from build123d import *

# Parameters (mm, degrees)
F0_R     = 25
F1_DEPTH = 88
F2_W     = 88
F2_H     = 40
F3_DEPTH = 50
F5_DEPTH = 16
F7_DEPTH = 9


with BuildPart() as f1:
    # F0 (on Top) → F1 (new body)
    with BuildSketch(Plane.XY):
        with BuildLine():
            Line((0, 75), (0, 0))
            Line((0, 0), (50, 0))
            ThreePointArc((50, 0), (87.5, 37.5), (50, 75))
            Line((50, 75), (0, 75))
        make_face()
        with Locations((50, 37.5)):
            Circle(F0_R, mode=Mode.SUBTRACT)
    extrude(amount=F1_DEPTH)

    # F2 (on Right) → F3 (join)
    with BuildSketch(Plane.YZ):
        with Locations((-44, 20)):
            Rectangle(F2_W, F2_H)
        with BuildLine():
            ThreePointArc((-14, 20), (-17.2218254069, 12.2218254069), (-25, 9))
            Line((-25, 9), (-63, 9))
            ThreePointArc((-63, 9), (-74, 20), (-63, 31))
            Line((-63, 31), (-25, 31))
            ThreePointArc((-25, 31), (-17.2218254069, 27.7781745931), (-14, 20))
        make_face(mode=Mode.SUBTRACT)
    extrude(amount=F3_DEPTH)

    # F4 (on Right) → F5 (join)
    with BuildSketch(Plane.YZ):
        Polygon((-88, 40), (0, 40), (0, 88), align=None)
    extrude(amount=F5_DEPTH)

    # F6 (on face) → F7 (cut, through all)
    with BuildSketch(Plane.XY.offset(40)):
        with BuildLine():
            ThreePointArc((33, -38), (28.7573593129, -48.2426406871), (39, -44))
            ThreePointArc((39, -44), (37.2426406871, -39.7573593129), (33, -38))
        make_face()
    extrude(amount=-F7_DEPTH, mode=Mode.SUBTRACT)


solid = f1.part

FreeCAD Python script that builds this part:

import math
import FreeCAD as App
import Part
import Sketcher
from FreeCAD import Vector
Q = App.Units.Quantity


def add_polygon(sketch, points):
    """Adds a closed chain of lines whose ends are joined by coincident constraints."""
    first, n = sketch.GeometryCount, len(points)
    for a, b in zip(points, points[1:] + points[:1]):
        sketch.addGeometry(Part.LineSegment(App.Vector(*a, 0), App.Vector(*b, 0)), False)
    for i in range(n):
        sketch.addConstraint(Sketcher.Constraint("Coincident", first + i, 2, first + (i + 1) % n, 1))

doc = App.newDocument("Part")
body = doc.addObject("PartDesign::Body", "Body")

# Sketch on XY plane
sketch1 = doc.addObject("Sketcher::SketchObject", "Sketch")
body.addObject(sketch1)
sketch1.AttachmentSupport = (doc.XY_Plane, [""])
sketch1.MapMode = "FlatFace"
sketch1.addGeometry(Part.LineSegment(Vector(0, 75, 0), Vector(0, 0, 0)), False)
sketch1.addGeometry(Part.LineSegment(Vector(0, 0, 0), Vector(50, 0, 0)), False)
sketch1.addGeometry(Part.ArcOfCircle(Part.Circle(Vector(50, 38, 0), Vector(0, 0, 1), 38), math.radians(-90), math.radians(90)), False)
sketch1.addGeometry(Part.LineSegment(Vector(50, 75, 0), Vector(0, 75, 0)), False)
sketch1.addGeometry(Part.Circle(Vector(50, 38, 0), Vector(0, 0, 1), 25), False)
sketch1.addConstraint(Sketcher.Constraint("Coincident", 0, 2, 1, 1))
sketch1.addConstraint(Sketcher.Constraint("Tangent", 1, 2, 2, 1))
sketch1.addConstraint(Sketcher.Constraint("Tangent", 2, 2, 3, 1))
sketch1.addConstraint(Sketcher.Constraint("Coincident", 3, 2, 0, 1))
sketch1.addConstraint(Sketcher.Constraint("Vertical", 0))
sketch1.addConstraint(Sketcher.Constraint("Horizontal", 1))
sketch1.addConstraint(Sketcher.Constraint("Horizontal", 3))
sketch1.addConstraint(Sketcher.Constraint("Coincident", 0, 2, -1, 1))
sketch1.addConstraint(Sketcher.Constraint("Coincident", 4, 3, 2, 3))
sketch1.addConstraint(Sketcher.Constraint("Diameter", 4, Q("50 mm")))
sketch1.addConstraint(Sketcher.Constraint("Radius", 2, Q("37.5 mm")))
sketch1.addConstraint(Sketcher.Constraint("DistanceX", 1, 1, 1, 2, Q("50 mm")))
pad1 = doc.addObject("PartDesign::Pad", "Pad")
body.addObject(pad1)
pad1.Profile = sketch1
pad1.Length = 88

# Sketch on YZ plane
sketch2 = doc.addObject("Sketcher::SketchObject", "Sketch001")
body.addObject(sketch2)
sketch2.AttachmentSupport = (doc.YZ_Plane, [""])
sketch2.MapMode = "FlatFace"
add_polygon(sketch2, [(-88, 40), (-88, 0), (0, 0), (0, 40)])  # lines 0-3
sketch2.addGeometry(Part.ArcOfCircle(Part.Circle(Vector(-25, 20, 0), Vector(0, 0, 1), 11), math.radians(0), math.radians(90)), False)  # 4
sketch2.addGeometry(Part.ArcOfCircle(Part.Circle(Vector(-25, 20, 0), Vector(0, 0, 1), 11), math.radians(-90), math.radians(0)), False)  # 5
sketch2.addGeometry(Part.LineSegment(Vector(-25, 9, 0), Vector(-63, 9, 0)), False)  # 6
sketch2.addGeometry(Part.ArcOfCircle(Part.Circle(Vector(-63, 20, 0), Vector(0, 0, 1), 11), math.radians(90), math.radians(270)), False)  # 7
sketch2.addGeometry(Part.LineSegment(Vector(-63, 31, 0), Vector(-25, 31, 0)), False)  # 8
sketch2.addConstraint(Sketcher.Constraint("Tangent", 4, 1, 5, 2))
sketch2.addConstraint(Sketcher.Constraint("Tangent", 5, 1, 6, 1))
sketch2.addConstraint(Sketcher.Constraint("Tangent", 6, 2, 7, 2))
sketch2.addConstraint(Sketcher.Constraint("Tangent", 7, 1, 8, 1))
sketch2.addConstraint(Sketcher.Constraint("Tangent", 8, 2, 4, 2))
sketch2.addConstraint(Sketcher.Constraint("Vertical", 0))
sketch2.addConstraint(Sketcher.Constraint("Horizontal", 1))
sketch2.addConstraint(Sketcher.Constraint("Vertical", 2))
sketch2.addConstraint(Sketcher.Constraint("Horizontal", 3))
sketch2.addConstraint(Sketcher.Constraint("Horizontal", 6))
sketch2.addConstraint(Sketcher.Constraint("Horizontal", 8))
sketch2.addConstraint(Sketcher.Constraint("Coincident", 1, 2, -1, 1))
sketch2.addConstraint(Sketcher.Constraint("Equal", 4, 5))
sketch2.addConstraint(Sketcher.Constraint("Horizontal", 7, 3, 4, 1))
sketch2.addConstraint(Sketcher.Constraint("Radius", 4, Q("11 mm")))
sketch2.addConstraint(Sketcher.Constraint("DistanceX", 1, 1, 1, 2, Q("88 mm")))
sketch2.addConstraint(Sketcher.Constraint("DistanceX", 6, 2, 6, 1, Q("38 mm")))
sketch2.addConstraint(Sketcher.Constraint("DistanceY", 0, 2, 0, 1, Q("40 mm")))
sketch2.addConstraint(Sketcher.Constraint("DistanceX", 4, 3, -1, 1, Q("25 mm")))
sketch2.addConstraint(Sketcher.Constraint("DistanceY", -1, 1, 4, 3, Q("20 mm")))
pad2 = doc.addObject("PartDesign::Pad", "Pad001")
body.addObject(pad2)
pad2.Profile = sketch2
pad2.Length = 50

# Sketch on YZ plane
sketch3 = doc.addObject("Sketcher::SketchObject", "Sketch002")
body.addObject(sketch3)
sketch3.AttachmentSupport = (doc.YZ_Plane, [""])
sketch3.MapMode = "FlatFace"
add_polygon(sketch3, [(-88, 40), (0, 40), (0, 88)])  # lines 0-2
sketch3.addConstraint(Sketcher.Constraint("Horizontal", 0))
sketch3.addConstraint(Sketcher.Constraint("Vertical", 1))
sketch3.addConstraint(Sketcher.Constraint("PointOnObject", 0, 2, -2))
sketch3.addConstraint(Sketcher.Constraint("DistanceX", 0, 1, 0, 2, Q("88 mm")))
sketch3.addConstraint(Sketcher.Constraint("DistanceY", 1, 1, 1, 2, Q("48 mm")))
sketch3.addConstraint(Sketcher.Constraint("DistanceY", -1, 1, 0, 2, Q("40 mm")))
pad3 = doc.addObject("PartDesign::Pad", "Pad002")
body.addObject(pad3)
pad3.Profile = sketch3
pad3.Length = 16

# Sketch on XY plane
sketch4 = doc.addObject("Sketcher::SketchObject", "Sketch003")
body.addObject(sketch4)
sketch4.AttachmentSupport = (doc.XY_Plane, [""])
sketch4.MapMode = "FlatFace"
sketch4.AttachmentOffset = App.Placement(Vector(0, 0, 40), App.Rotation())
sketch4.addGeometry(Part.ArcOfCircle(Part.Circle(Vector(33, -44, 0), Vector(0, 0, 1), 6), math.radians(90), math.radians(360)), False)
sketch4.addGeometry(Part.ArcOfCircle(Part.Circle(Vector(33, -44, 0), Vector(0, 0, 1), 6), math.radians(0), math.radians(90)), False)
sketch4.addConstraint(Sketcher.Constraint("Tangent", 0, 1, 1, 2))
sketch4.addConstraint(Sketcher.Constraint("Coincident", 1, 1, 0, 2))
sketch4.addConstraint(Sketcher.Constraint("Horizontal", 0, 3, 1, 1))
sketch4.addConstraint(Sketcher.Constraint("Vertical", 1, 3, 0, 1))
sketch4.addConstraint(Sketcher.Constraint("Radius", 0, Q("6 mm")))
sketch4.addConstraint(Sketcher.Constraint("DistanceX", -1, 1, 0, 3, Q("33 mm")))
sketch4.addConstraint(Sketcher.Constraint("DistanceY", 0, 3, -1, 1, Q("44 mm")))
pocket1 = doc.addObject("PartDesign::Pocket", "Pocket")
body.addObject(pocket1)
pocket1.Profile = sketch4
pocket1.Length = 9

doc.recompute()
